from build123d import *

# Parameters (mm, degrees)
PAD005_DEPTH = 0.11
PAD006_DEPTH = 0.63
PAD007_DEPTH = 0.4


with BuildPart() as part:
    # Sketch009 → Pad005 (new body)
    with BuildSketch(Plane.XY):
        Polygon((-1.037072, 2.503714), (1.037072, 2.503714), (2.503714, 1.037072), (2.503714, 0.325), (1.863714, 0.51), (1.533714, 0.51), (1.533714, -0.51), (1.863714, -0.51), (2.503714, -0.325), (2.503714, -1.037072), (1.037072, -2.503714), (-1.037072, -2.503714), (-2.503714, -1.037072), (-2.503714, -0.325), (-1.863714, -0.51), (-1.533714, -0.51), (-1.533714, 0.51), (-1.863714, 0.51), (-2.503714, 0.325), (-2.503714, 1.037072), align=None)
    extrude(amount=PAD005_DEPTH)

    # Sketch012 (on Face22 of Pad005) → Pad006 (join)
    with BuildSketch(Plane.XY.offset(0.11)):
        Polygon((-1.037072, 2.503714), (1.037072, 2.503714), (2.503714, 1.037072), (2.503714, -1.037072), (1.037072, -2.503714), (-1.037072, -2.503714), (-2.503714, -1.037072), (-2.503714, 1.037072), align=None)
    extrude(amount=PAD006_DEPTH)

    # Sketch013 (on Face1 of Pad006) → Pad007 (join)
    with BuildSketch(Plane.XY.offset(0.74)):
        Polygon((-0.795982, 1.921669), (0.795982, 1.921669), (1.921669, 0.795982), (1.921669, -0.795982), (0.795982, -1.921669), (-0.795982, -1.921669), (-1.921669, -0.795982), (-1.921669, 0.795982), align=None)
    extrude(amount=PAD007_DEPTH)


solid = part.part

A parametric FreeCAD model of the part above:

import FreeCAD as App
import Part
import Sketcher

V = App.Vector

doc = App.newDocument("Part")
params = doc.addObject("Spreadsheet::Sheet", "Params")
for row, (alias, value) in enumerate([
    ("sketch1_width", "0.33 mm"),
    ("sketch1_height", "1.02 mm"),
    ("pad1_length", "0.11 mm"),
    ("pad2_length", "0.63 mm"),
    ("pad3_length", "0.4 mm"),
], start=1):
    params.set(f"A{row}", alias)
    params.set(f"B{row}", "=" + value)
    params.setAlias(f"B{row}", alias)

body = doc.addObject("PartDesign::Body", "Body")

sketch1 = body.newObject("Sketcher::SketchObject", "Sketch")
sketch1.AttachmentSupport = (doc.getObject("XY_Plane"), [""])
sketch1.MapMode = "FlatFace"
sketch1.addGeometry([
    Part.LineSegment(V(1.037072, 2.503714, 0), V(-1.037072, 2.503714, 0)),
    Part.LineSegment(V(-1.037072, 2.503714, 0), V(-2.503714, 1.037072, 0)),
    Part.LineSegment(V(-2.503714, 1.037072, 0), V(-2.503714, 0.325, 0)),
    Part.LineSegment(V(-2.503714, 0.325, 0), V(-1.863714, 0.51, 0)),
    Part.LineSegment(V(-1.863714, 0.51, 0), V(-1.533714, 0.51, 0)),
    Part.LineSegment(V(-1.533714, 0.51, 0), V(-1.533714, -0.51, 0)),
    Part.LineSegment(V(-1.533714, -0.51, 0), V(-1.863714, -0.51, 0)),
    Part.LineSegment(V(-1.863714, -0.51, 0), V(-2.503714, -0.325, 0)),
    Part.LineSegment(V(-2.503714, -0.325, 0), V(-2.503714, -1.037072, 0)),
    Part.LineSegment(V(-2.503714, -1.037072, 0), V(-1.037072, -2.503714, 0)),
    Part.LineSegment(V(-1.037072, -2.503714, 0), V(1.037072, -2.503714, 0)),
    Part.LineSegment(V(1.037072, -2.503714, 0), V(2.503714, -1.037072, 0)),
    Part.LineSegment(V(2.503714, -1.037072, 0), V(2.503714, -0.325, 0)),
    Part.LineSegment(V(2.503714, -0.325, 0), V(1.863714, -0.51, 0)),
    Part.LineSegment(V(1.863714, -0.51, 0), V(1.533714, -0.51, 0)),
    Part.LineSegment(V(1.533714, -0.51, 0), V(1.533714, 0.51, 0)),
    Part.LineSegment(V(1.533714, 0.51, 0), V(1.863714, 0.51, 0)),
    Part.LineSegment(V(1.863714, 0.51, 0), V(2.503714, 0.325, 0)),
    Part.LineSegment(V(2.503714, 0.325, 0), V(2.503714, 1.037072, 0)),
    Part.LineSegment(V(2.503714, 1.037072, 0), V(1.037072, 2.503714, 0)),
], False)
sketch1.addConstraint([
    Sketcher.Constraint("Coincident", 0, 2, 1, 1),
    Sketcher.Constraint("Coincident", 1, 2, 2, 1),
    Sketcher.Constraint("Coincident", 2, 2, 3, 1),
    Sketcher.Constraint("Coincident", 3, 2, 4, 1),
    Sketcher.Constraint("Coincident", 4, 2, 5, 1),
    Sketcher.Constraint("Coincident", 5, 2, 6, 1),
    Sketcher.Constraint("Coincident", 6, 2, 7, 1),
    Sketcher.Constraint("Coincident", 7, 2, 8, 1),
    Sketcher.Constraint("Coincident", 8, 2, 9, 1),
    Sketcher.Constraint("Coincident", 9, 2, 10, 1),
    Sketcher.Constraint("Coincident", 10, 2, 11, 1),
    Sketcher.Constraint("Coincident", 11, 2, 12, 1),
    Sketcher.Constraint("Coincident", 12, 2, 13, 1),
    Sketcher.Constraint("Coincident", 13, 2, 14, 1),
    Sketcher.Constraint("Coincident", 14, 2, 15, 1),
    Sketcher.Constraint("Coincident", 15, 2, 16, 1),
    Sketcher.Constraint("Coincident", 16, 2, 17, 1),
    Sketcher.Constraint("Coincident", 17, 2, 18, 1),
    Sketcher.Constraint("Coincident", 18, 2, 19, 1),
    Sketcher.Constraint("Coincident", 19, 2, 0, 1),
    Sketcher.Constraint("Horizontal", 0),
    Sketcher.Constraint("Vertical", 2),
    Sketcher.Constraint("Horizontal", 4),
    Sketcher.Constraint("Vertical", 5),
    Sketcher.Constraint("Horizontal", 6),
    Sketcher.Constraint("Vertical", 8),
    Sketcher.Constraint("Horizontal", 10),
    Sketcher.Constraint("Vertical", 12),
    Sketcher.Constraint("Horizontal", 14),
    Sketcher.Constraint("Vertical", 15),
    Sketcher.Constraint("Horizontal", 16),
    Sketcher.Constraint("Vertical", 18),
    Sketcher.Constraint("Symmetric", 0, 2, 10, 2, -1, 1),
    Sketcher.Constraint("Symmetric", 1, 2, 11, 2, -1, 1),
    Sketcher.Constraint("Symmetric", 3, 2, 13, 2, -1, 1),
    Sketcher.Constraint("Symmetric", 5, 2, 15, 2, -1, 1),
    Sketcher.Constraint("Symmetric", 7, 2, 17, 2, -1, 1),
    Sketcher.Constraint("Symmetric", 8, 2, 11, 2, -2),
    Sketcher.Constraint("Symmetric", 6, 2, 13, 2, -2),
    Sketcher.Constraint("Perpendicular", 1, 9),
    Sketcher.Constraint("Parallel", 3, 13),
    Sketcher.Constraint("Parallel", 7, 17),
    Sketcher.Constraint("Perpendicular", 11, 19),
    Sketcher.Constraint("Horizontal", 7, 2, 12, 2),
    Sketcher.Constraint("Horizontal", 1, 2, 18, 2),
    Sketcher.Constraint("Vertical", 0, 2, 9, 2),
    Sketcher.Constraint("DistanceX", 4, 1, 4, 2, 0.33),
    Sketcher.Constraint("DistanceY", 5, 2, 5, 1, 1.02),
    Sketcher.Constraint("DistanceX", 2, 2, 3, 2, 0.64),
    Sketcher.Constraint("DistanceY", 7, 2, 2, 2, 0.65),
    Sketcher.Constraint("DistanceX", 0, 2, 0, 1, 2.074144),
    Sketcher.Constraint("DistanceY", 2, 2, 2, 1, 0.712072),
    Sketcher.Constraint("DistanceX", 5, 2, 11, 2, 4.037428),
])
sketch1.setExpression("Constraints[46]", "Params.sketch1_width")
sketch1.setExpression("Constraints[47]", "Params.sketch1_height")
pad1 = body.newObject("PartDesign::Pad", "Pad")
pad1.Profile = sketch1
pad1.setExpression("Length", "Params.pad1_length")

sketch2 = body.newObject("Sketcher::SketchObject", "Sketch001")
sketch2.AttachmentSupport = (doc.getObject("XY_Plane"), [""])
sketch2.MapMode = "FlatFace"
sketch2.AttachmentOffset = App.Placement(V(0, 0, 0.11), App.Rotation())
sketch2.addGeometry([
    Part.LineSegment(V(1.037072, 2.503714, 0), V(-1.037072, 2.503714, 0)),
    Part.LineSegment(V(-1.037072, 2.503714, 0), V(-2.503714, 1.037072, 0)),
    Part.LineSegment(V(-2.503714, 1.037072, 0), V(-2.503714, -1.037072, 0)),
    Part.LineSegment(V(-2.503714, -1.037072, 0), V(-1.037072, -2.503714, 0)),
    Part.LineSegment(V(-1.037072, -2.503714, 0), V(1.037072, -2.503714, 0)),
    Part.LineSegment(V(1.037072, -2.503714, 0), V(2.503714, -1.037072, 0)),
    Part.LineSegment(V(2.503714, -1.037072, 0), V(2.503714, 1.037072, 0)),
    Part.LineSegment(V(2.503714, 1.037072, 0), V(1.037072, 2.503714, 0)),
], False)
sketch2.addConstraint([
    Sketcher.Constraint("Coincident", 0, 2, 1, 1),
    Sketcher.Constraint("Coincident", 1, 2, 2, 1),
    Sketcher.Constraint("Coincident", 2, 2, 3, 1),
    Sketcher.Constraint("Coincident", 3, 2, 4, 1),
    Sketcher.Constraint("Coincident", 4, 2, 5, 1),
    Sketcher.Constraint("Coincident", 5, 2, 6, 1),
    Sketcher.Constraint("Coincident", 6, 2, 7, 1),
    Sketcher.Constraint("Coincident", 7, 2, 0, 1),
    Sketcher.Constraint("Horizontal", 0),
    Sketcher.Constraint("Vertical", 2),
    Sketcher.Constraint("Horizontal", 4),
    Sketcher.Constraint("Vertical", 6),
    Sketcher.Constraint("Symmetric", 0, 2, 4, 2, -1, 1),
    Sketcher.Constraint("Symmetric", 1, 2, 5, 2, -1, 1),
    Sketcher.Constraint("Perpendicular", 1, 3),
    Sketcher.Constraint("Perpendicular", 5, 7),
    Sketcher.Constraint("Horizontal", 2, 2, 5, 2),
    Sketcher.Constraint("Horizontal", 1, 2, 6, 2),
    Sketcher.Constraint("Vertical", 0, 2, 3, 2),
    Sketcher.Constraint("Equal", 4, 2),
    Sketcher.Constraint("DistanceX", 0, 2, 0, 1, 2.074144),
    Sketcher.Constraint("Distance", 1, 2.074145),
])
pad2 = body.newObject("PartDesign::Pad", "Pad001")
pad2.Profile = sketch2
pad2.setExpression("Length", "Params.pad2_length")

sketch3 = body.newObject("Sketcher::SketchObject", "Sketch002")
sketch3.AttachmentSupport = (doc.getObject("XY_Plane"), [""])
sketch3.MapMode = "FlatFace"
sketch3.AttachmentOffset = App.Placement(V(0, 0, 0.74), App.Rotation())
sketch3.addGeometry([
    Part.LineSegment(V(0.795982, 1.921669, 0), V(-0.795982, 1.921669, 0)),
    Part.LineSegment(V(-0.795982, 1.921669, 0), V(-1.921669, 0.795982, 0)),
    Part.LineSegment(V(-1.921669, 0.795982, 0), V(-1.921669, -0.795982, 0)),
    Part.LineSegment(V(-1.921669, -0.795982, 0), V(-0.795982, -1.921669, 0)),
    Part.LineSegment(V(-0.795982, -1.921669, 0), V(0.795982, -1.921669, 0)),
    Part.LineSegment(V(0.795982, -1.921669, 0), V(1.921669, -0.795982, 0)),
    Part.LineSegment(V(1.921669, -0.795982, 0), V(1.921669, 0.795982, 0)),
    Part.LineSegment(V(1.921669, 0.795982, 0), V(0.795982, 1.921669, 0)),
], False)
sketch3.addConstraint([
    Sketcher.Constraint("Coincident", 0, 2, 1, 1),
    Sketcher.Constraint("Coincident", 1, 2, 2, 1),
    Sketcher.Constraint("Coincident", 2, 2, 3, 1),
    Sketcher.Constraint("Coincident", 3, 2, 4, 1),
    Sketcher.Constraint("Coincident", 4, 2, 5, 1),
    Sketcher.Constraint("Coincident", 5, 2, 6, 1),
    Sketcher.Constraint("Coincident", 6, 2, 7, 1),
    Sketcher.Constraint("Coincident", 7, 2, 0, 1),
    Sketcher.Constraint("Horizontal", 0),
    Sketcher.Constraint("Vertical", 2),
    Sketcher.Constraint("Horizontal", 4),
    Sketcher.Constraint("Vertical", 6),
    Sketcher.Constraint("Symmetric", 0, 2, 4, 2, -1, 1),
    Sketcher.Constraint("Symmetric", 1, 2, 5, 2, -1, 1),
    Sketcher.Constraint("Perpendicular", 1, 3),
    Sketcher.Constraint("Perpendicular", 5, 7),
    Sketcher.Constraint("Horizontal", 2, 2, 5, 2),
    Sketcher.Constraint("Horizontal", 1, 2, 6, 2),
    Sketcher.Constraint("Vertical", 0, 2, 3, 2),
    Sketcher.Constraint("Equal", 4, 2),
    Sketcher.Constraint("Distance", 1, 1.591962),
    Sketcher.Constraint("DistanceX", 0, 2, 0, 1, 1.591964),
])
pad3 = body.newObject("PartDesign::Pad", "Pad002")
pad3.Profile = sketch3
pad3.setExpression("Length", "Params.pad3_length")

doc.recompute()
